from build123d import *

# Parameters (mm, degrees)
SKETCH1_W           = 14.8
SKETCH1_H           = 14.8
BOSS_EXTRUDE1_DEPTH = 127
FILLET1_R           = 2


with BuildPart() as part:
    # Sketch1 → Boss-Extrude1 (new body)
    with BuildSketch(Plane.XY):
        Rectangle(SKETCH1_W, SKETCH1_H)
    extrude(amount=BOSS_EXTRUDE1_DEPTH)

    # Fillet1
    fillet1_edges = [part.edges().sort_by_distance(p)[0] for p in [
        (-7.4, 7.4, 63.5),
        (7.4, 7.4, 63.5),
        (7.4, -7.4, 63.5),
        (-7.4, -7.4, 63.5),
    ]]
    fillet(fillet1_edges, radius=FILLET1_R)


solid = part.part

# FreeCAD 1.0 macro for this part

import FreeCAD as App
import Part
import Sketcher


def edges_at(feature, points):
    """Names of the edges that pass closest to the given points."""
    edges = feature.Shape.Edges
    near = lambda p: min(range(len(edges)), key=lambda i: edges[i].distToShape(Part.Vertex(*p))[0])
    return sorted({f"Edge{near(p) + 1}" for p in points})


def add_polygon(sketch, points):
    """Adds a closed chain of lines whose ends are joined by coincident constraints."""
    first, n = sketch.GeometryCount, len(points)
    for a, b in zip(points, points[1:] + points[:1]):
        sketch.addGeometry(Part.LineSegment(App.Vector(*a, 0), App.Vector(*b, 0)), False)
    for i in range(n):
        sketch.addConstraint(Sketcher.Constraint("Coincident", first + i, 2, first + (i + 1) % n, 1))

doc = App.newDocument("Part")
body = doc.addObject("PartDesign::Body", "Body")

sketch1 = doc.addObject("Sketcher::SketchObject", "Sketch")
body.addObject(sketch1)
sketch1.AttachmentSupport = (doc.XY_Plane, [""])
sketch1.MapMode = "FlatFace"
add_polygon(sketch1, [(-7.4, 7.4), (-7.4, -7.4), (7.4, -7.4), (7.4, 7.4)])
sketch1.addConstraint([
    Sketcher.Constraint("Vertical", 0),
    Sketcher.Constraint("Horizontal", 1),
    Sketcher.Constraint("Vertical", 2),
    Sketcher.Constraint("Horizontal", 3),
    Sketcher.Constraint("Symmetric", 0, 2, 2, 2, -1, 1),
    Sketcher.Constraint("Equal", 3, 0),
    Sketcher.Constraint("DistanceX", 1, 1, 1, 2, 14.8),
])
pad1 = doc.addObject("PartDesign::Pad", "Pad")
body.addObject(pad1)
pad1.Profile = sketch1
pad1.Length = 127
doc.recompute()

fillet = doc.addObject("PartDesign::Fillet", "Fillet")
body.addObject(fillet)
fillet.Base = (pad1, edges_at(pad1, [
    (-7.4, 7.4, 63.5),
    (7.4, 7.4, 63.5),
    (7.4, -7.4, 63.5),
    (-7.4, -7.4, 63.5),
]))
fillet.Radius = 2

doc.recompute()
